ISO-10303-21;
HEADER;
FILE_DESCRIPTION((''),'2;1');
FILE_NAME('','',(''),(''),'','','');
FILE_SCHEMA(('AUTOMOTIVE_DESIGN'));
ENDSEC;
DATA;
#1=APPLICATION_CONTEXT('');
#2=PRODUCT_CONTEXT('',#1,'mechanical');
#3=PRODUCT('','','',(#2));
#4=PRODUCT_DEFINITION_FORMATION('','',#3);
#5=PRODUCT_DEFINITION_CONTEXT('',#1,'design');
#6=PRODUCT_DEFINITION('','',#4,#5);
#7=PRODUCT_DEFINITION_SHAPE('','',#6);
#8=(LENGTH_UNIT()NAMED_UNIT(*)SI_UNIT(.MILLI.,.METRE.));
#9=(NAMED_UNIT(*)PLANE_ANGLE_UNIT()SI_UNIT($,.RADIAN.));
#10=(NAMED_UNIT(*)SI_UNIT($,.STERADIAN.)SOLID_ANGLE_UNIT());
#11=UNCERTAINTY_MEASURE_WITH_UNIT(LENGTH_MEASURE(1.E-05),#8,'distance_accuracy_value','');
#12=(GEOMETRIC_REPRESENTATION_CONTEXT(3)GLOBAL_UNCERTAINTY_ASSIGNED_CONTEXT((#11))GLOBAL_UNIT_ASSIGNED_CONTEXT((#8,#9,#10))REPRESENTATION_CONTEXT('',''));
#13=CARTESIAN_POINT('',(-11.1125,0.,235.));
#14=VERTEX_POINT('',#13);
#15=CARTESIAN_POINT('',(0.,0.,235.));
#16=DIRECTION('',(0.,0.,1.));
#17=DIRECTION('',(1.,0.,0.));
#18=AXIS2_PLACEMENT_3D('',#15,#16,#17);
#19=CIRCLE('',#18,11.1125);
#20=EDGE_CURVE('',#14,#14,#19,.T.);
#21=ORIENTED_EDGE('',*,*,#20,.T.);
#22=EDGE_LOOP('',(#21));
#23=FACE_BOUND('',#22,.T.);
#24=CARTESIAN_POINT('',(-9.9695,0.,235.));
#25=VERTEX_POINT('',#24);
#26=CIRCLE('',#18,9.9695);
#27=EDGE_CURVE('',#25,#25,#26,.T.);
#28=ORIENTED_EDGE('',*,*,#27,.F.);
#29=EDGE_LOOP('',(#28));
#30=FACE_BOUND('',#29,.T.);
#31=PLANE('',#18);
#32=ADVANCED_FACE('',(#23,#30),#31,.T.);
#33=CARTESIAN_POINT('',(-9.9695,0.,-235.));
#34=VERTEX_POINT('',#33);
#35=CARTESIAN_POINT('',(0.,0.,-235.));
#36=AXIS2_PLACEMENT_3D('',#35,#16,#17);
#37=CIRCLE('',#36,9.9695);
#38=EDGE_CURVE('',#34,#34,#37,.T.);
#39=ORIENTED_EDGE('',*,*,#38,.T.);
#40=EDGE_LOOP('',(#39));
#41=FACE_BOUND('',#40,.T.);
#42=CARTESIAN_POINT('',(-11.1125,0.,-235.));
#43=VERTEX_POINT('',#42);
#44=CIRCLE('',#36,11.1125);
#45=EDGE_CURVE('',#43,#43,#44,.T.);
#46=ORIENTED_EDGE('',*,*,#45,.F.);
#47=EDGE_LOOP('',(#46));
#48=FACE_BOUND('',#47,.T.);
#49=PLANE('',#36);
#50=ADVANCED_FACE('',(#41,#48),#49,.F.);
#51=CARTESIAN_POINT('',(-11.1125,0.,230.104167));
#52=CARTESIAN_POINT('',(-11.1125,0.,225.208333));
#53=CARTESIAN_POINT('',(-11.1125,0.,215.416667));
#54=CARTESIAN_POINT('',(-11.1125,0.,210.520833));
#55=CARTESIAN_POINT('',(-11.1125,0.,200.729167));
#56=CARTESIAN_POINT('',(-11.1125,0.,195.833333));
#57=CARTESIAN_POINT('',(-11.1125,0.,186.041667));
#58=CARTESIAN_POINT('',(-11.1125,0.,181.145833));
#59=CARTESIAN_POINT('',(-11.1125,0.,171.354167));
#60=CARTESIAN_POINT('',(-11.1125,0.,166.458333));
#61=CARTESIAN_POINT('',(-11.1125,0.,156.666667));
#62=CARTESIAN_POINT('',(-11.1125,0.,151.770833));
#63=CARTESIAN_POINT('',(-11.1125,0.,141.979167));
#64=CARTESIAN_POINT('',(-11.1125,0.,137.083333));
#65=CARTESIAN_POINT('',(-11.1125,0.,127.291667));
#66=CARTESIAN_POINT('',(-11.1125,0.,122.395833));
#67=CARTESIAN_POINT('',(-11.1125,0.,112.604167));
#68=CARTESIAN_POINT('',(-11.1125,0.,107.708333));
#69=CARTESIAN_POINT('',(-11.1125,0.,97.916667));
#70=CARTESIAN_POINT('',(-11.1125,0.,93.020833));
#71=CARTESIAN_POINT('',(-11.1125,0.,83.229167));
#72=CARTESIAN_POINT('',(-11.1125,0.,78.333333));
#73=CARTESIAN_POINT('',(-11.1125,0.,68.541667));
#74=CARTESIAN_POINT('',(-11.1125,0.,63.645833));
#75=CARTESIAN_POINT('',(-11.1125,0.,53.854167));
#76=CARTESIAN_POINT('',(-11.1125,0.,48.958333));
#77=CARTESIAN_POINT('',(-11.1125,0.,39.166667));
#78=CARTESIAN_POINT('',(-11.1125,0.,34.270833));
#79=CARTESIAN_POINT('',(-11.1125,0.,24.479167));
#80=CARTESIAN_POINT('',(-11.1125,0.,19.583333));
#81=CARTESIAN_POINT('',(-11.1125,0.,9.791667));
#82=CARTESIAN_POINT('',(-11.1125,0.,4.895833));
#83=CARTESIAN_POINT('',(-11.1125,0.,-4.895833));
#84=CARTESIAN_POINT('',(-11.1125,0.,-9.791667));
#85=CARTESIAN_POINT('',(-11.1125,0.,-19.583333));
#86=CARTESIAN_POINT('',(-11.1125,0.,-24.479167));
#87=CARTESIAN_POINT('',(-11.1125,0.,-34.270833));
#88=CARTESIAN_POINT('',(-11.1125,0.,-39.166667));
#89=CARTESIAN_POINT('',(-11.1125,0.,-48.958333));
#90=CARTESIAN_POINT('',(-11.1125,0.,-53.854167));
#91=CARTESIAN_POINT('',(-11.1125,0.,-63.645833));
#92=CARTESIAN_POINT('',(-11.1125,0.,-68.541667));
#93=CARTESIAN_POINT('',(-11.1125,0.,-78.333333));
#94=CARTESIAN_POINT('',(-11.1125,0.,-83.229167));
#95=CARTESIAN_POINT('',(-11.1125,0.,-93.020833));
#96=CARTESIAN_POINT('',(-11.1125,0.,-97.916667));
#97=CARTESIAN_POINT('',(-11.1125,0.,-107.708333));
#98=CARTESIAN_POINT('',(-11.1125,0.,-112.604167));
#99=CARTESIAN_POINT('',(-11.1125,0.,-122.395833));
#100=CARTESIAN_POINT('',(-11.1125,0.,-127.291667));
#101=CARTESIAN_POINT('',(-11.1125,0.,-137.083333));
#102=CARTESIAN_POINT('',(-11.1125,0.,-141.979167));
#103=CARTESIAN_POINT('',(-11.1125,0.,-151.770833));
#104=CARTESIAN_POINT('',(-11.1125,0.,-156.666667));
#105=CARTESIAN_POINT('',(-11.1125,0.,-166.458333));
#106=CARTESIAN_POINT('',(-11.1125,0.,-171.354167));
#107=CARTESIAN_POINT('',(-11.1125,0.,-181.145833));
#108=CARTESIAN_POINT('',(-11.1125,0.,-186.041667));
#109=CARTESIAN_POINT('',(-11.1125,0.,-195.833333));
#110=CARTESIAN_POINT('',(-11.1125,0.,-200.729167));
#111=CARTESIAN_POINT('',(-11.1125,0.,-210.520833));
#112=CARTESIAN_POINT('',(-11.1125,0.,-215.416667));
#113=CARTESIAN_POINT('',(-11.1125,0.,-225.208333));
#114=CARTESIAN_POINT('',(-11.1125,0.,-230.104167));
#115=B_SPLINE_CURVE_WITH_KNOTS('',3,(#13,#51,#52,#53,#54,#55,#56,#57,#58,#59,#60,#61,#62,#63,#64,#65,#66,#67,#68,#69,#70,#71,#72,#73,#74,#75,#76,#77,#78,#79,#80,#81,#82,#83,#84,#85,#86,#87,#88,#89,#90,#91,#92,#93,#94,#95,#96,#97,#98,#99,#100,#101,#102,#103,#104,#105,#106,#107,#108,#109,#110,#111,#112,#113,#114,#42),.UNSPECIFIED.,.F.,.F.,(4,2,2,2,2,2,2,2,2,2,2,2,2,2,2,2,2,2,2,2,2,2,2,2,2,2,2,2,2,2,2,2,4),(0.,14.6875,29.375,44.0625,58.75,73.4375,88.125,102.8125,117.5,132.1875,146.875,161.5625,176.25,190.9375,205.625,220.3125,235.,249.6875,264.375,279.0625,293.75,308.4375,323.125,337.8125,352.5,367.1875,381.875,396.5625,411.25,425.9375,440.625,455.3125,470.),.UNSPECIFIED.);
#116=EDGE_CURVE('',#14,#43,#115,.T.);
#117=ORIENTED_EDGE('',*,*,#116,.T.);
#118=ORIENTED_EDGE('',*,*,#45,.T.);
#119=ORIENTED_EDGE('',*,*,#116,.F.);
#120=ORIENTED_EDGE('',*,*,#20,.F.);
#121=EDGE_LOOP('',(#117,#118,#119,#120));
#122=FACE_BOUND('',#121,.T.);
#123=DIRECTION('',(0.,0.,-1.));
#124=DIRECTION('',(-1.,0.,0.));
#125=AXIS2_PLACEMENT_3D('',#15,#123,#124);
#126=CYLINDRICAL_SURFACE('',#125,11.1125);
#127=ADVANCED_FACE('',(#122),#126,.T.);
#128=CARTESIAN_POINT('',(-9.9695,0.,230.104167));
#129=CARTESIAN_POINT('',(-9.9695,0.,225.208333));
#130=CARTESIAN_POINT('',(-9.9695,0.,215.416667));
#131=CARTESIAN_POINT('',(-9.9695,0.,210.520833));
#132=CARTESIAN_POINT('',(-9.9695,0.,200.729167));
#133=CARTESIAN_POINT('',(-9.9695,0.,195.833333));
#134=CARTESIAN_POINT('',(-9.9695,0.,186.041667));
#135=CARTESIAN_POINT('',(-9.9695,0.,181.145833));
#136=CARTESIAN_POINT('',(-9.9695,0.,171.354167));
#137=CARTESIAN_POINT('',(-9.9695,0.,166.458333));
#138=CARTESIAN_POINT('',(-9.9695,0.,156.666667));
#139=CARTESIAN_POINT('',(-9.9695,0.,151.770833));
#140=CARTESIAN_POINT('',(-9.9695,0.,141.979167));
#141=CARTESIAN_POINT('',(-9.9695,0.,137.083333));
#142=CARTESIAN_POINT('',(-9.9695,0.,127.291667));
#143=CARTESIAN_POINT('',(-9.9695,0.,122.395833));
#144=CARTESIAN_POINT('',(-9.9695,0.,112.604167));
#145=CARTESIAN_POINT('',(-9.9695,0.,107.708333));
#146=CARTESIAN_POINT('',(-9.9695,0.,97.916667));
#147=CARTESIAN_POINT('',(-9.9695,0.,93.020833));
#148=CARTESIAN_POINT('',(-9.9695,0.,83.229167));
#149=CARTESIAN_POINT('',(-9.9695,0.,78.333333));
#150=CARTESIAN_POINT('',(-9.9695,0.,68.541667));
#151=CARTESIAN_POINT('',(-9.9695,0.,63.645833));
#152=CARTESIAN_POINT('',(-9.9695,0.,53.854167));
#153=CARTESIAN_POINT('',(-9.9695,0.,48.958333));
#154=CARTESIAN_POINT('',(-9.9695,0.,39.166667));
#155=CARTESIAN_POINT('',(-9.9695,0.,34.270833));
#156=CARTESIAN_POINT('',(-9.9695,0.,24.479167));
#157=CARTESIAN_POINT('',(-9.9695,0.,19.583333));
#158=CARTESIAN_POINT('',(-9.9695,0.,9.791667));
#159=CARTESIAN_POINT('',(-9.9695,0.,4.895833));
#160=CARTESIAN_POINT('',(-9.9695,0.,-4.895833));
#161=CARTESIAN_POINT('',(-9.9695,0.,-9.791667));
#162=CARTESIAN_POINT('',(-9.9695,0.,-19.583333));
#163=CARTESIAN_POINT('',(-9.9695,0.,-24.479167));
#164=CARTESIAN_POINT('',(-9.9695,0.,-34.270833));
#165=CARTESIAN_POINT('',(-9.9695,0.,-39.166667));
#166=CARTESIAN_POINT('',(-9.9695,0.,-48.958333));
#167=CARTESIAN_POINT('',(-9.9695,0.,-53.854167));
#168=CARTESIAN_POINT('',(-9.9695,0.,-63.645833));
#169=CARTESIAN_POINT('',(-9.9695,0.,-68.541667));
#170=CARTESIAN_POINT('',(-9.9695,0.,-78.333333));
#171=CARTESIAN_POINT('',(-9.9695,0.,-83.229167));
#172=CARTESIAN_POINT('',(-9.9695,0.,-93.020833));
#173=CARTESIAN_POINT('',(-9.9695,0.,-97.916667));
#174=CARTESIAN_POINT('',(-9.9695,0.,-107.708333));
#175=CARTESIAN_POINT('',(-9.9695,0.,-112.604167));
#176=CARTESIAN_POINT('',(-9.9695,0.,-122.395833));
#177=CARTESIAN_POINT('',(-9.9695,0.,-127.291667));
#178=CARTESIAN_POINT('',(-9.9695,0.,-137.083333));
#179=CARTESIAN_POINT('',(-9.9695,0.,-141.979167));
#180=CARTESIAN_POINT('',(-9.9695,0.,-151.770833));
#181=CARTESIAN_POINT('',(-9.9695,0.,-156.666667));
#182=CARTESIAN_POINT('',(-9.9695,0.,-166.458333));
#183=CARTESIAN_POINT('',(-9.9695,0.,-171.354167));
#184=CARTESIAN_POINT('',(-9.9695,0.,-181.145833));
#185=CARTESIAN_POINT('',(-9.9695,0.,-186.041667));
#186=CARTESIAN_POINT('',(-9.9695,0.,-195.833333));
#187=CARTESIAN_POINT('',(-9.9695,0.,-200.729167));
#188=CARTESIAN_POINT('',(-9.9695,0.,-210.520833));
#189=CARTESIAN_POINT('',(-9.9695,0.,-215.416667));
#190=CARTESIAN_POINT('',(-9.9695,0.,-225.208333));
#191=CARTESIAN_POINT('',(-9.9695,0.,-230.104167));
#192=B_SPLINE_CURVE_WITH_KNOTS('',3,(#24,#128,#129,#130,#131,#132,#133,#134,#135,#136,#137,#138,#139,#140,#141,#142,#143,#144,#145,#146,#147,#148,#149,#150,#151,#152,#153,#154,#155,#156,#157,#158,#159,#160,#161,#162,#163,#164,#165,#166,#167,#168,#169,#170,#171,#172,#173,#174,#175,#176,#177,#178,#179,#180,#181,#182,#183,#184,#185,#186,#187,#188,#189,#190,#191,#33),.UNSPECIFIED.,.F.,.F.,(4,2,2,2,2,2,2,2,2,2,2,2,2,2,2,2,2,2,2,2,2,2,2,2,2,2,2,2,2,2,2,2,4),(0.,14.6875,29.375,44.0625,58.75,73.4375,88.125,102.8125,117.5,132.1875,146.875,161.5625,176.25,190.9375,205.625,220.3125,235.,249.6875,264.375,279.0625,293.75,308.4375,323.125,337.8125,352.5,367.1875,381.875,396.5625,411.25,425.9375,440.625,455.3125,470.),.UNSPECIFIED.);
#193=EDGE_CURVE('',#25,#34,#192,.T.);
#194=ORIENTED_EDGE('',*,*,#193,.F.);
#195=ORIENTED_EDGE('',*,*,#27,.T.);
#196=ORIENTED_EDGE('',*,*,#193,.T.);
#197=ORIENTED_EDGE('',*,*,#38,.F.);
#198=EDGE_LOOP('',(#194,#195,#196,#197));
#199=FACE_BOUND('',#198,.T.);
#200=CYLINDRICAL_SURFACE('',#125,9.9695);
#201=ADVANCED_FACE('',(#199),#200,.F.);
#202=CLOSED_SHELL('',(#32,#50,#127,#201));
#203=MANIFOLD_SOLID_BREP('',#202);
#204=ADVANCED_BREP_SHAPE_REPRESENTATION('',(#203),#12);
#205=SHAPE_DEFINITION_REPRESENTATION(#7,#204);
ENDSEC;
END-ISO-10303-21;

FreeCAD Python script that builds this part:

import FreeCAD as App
import Part
import Sketcher

V = App.Vector
Q = App.Units.Quantity

doc = App.newDocument("Part")
body = doc.addObject("PartDesign::Body", "Body")

sketch1 = body.newObject("Sketcher::SketchObject", "Sketch")
sketch1.AttachmentSupport = (doc.getObject("XY_Plane"), [""])
sketch1.MapMode = "FlatFace"
sketch1.addGeometry([
    Part.Circle(V(0, 0, 0), V(0, 0, 1), 11),
    Part.Circle(V(0, 0, 0), V(0, 0, 1), 10),
], False)
sketch1.addConstraint([
    Sketcher.Constraint("Coincident", 0, 3, -1, 1),
    Sketcher.Constraint("Coincident", 1, 3, -1, 1),
    Sketcher.Constraint("Diameter", 0, Q("0.875 in")),
    Sketcher.Constraint("Diameter", 1, Q("0.785 in")),
])
pad1 = body.newObject("PartDesign::Pad", "Pad")
pad1.Profile = sketch1
pad1.Length = 470
pad1.Midplane = True

doc.recompute()
